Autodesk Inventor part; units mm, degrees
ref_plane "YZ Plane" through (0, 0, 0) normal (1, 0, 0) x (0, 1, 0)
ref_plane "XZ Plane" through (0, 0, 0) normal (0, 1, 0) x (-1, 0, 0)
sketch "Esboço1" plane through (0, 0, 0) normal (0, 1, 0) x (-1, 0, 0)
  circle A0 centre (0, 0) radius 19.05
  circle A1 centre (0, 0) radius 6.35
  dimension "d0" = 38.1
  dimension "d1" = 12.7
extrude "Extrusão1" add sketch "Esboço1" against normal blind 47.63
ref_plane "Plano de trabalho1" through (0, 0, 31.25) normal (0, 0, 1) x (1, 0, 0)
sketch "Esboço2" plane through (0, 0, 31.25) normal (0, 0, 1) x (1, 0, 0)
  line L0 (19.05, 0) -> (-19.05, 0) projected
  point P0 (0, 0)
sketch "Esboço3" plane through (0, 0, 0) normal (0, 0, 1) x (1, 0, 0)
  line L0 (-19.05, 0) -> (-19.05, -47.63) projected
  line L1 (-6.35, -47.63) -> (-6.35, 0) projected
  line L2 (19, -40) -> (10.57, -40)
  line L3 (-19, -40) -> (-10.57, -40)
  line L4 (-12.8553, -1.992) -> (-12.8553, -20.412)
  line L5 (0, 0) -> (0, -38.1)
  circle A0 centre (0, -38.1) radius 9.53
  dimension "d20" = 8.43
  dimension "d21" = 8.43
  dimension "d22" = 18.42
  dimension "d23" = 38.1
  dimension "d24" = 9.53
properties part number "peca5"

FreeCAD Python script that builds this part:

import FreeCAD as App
import Part
import Sketcher

V = App.Vector
Q = App.Units.Quantity

doc = App.newDocument("Part")
body = doc.addObject("PartDesign::Body", "Body")

sketch1 = doc.addObject("Sketcher::SketchObject", "Sketch")
body.addObject(sketch1)
sketch1.AttachmentSupport = (doc.XZ_Plane, [""])
sketch1.MapMode = "FlatFace"
sketch1.addGeometry(Part.Circle(V(0, 0, 0), V(0, 0, 1), 19), False)
sketch1.addGeometry(Part.Circle(V(0, 0, 0), V(0, 0, 1), 6), False)
sketch1.addConstraint(Sketcher.Constraint("Coincident", 0, 3, -1, 1))
sketch1.addConstraint(Sketcher.Constraint("Coincident", 1, 3, -1, 1))
sketch1.addConstraint(Sketcher.Constraint("Diameter", 0, Q("1.5 in")))
sketch1.addConstraint(Sketcher.Constraint("Diameter", 1, Q("0.5 in")))
pad1 = doc.addObject("PartDesign::Pad", "Pad")
body.addObject(pad1)
pad1.Profile = sketch1
pad1.Length = Q("1.8751969 in")

doc.recompute()
